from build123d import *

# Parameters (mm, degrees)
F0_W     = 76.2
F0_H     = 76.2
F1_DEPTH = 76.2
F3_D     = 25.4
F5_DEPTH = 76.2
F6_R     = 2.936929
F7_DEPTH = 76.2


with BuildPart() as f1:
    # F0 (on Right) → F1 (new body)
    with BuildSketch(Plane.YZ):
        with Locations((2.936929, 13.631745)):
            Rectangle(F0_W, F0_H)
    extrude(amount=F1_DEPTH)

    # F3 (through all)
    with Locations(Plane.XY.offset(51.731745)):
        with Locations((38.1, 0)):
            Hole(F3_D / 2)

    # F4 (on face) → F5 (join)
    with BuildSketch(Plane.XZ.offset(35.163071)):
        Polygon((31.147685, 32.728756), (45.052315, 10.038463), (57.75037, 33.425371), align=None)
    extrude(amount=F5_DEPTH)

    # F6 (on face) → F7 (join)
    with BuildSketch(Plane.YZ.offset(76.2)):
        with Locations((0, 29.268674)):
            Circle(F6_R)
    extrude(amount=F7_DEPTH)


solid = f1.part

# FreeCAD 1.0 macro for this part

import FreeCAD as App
import Part
import Sketcher

V = App.Vector
Q = App.Units.Quantity


def add_polygon(sketch, points):
    """Adds a closed chain of lines whose ends are joined by coincident constraints."""
    first, n = sketch.GeometryCount, len(points)
    for a, b in zip(points, points[1:] + points[:1]):
        sketch.addGeometry(Part.LineSegment(App.Vector(*a, 0), App.Vector(*b, 0)), False)
    for i in range(n):
        sketch.addConstraint(Sketcher.Constraint("Coincident", first + i, 2, first + (i + 1) % n, 1))

doc = App.newDocument("Part")
params = doc.addObject("Spreadsheet::Sheet", "Params")
for row, (alias, value) in enumerate([
    ("sketch1_width", "3 in"),
    ("pad1_length", "3 in"),
    ("sketch2_diameter", "1 in"),
    ("hole_diameter", "1 in"),
    ("pad2_length", "3 in"),
    ("pad3_length", "3 in"),
], start=1):
    params.set(f"A{row}", alias)
    params.set(f"B{row}", "=" + value)
    params.setAlias(f"B{row}", alias)

body = doc.addObject("PartDesign::Body", "Body")

sketch1 = body.newObject("Sketcher::SketchObject", "Sketch")
sketch1.AttachmentSupport = (doc.getObject("YZ_Plane"), [""])
sketch1.MapMode = "FlatFace"
add_polygon(sketch1, [(-35, 52), (-35, -24), (41, -24), (41, 52)])
sketch1.addConstraint(Sketcher.Constraint("Vertical", 0))
sketch1.addConstraint(Sketcher.Constraint("Horizontal", 1))
sketch1.addConstraint(Sketcher.Constraint("Vertical", 2))
sketch1.addConstraint(Sketcher.Constraint("Horizontal", 3))
sketch1.addConstraint(Sketcher.Constraint("Equal", 3, 0))
sketch1.addConstraint(Sketcher.Constraint("DistanceX", 1, 1, 1, 2, Q("3 in")))
sketch1.addConstraint(Sketcher.Constraint("DistanceX", 0, 2, -1, 1, 35.163071))
sketch1.addConstraint(Sketcher.Constraint("DistanceY", 0, 2, -1, 1, 24.468255))
sketch1.setExpression("Constraints[9]", "Params.sketch1_width")
pad1 = body.newObject("PartDesign::Pad", "Pad")
pad1.Profile = sketch1
pad1.setExpression("Length", "Params.pad1_length")

sketch2 = body.newObject("Sketcher::SketchObject", "Sketch001")
sketch2.AttachmentSupport = (doc.getObject("XY_Plane"), [""])
sketch2.MapMode = "FlatFace"
sketch2.AttachmentOffset = App.Placement(V(0, 0, 51.731745), App.Rotation())
sketch2.addGeometry(Part.Circle(V(38, 0, 0), V(0, 0, 1), 13), False)
sketch2.addConstraint(Sketcher.Constraint("PointOnObject", 0, 3, -1))
sketch2.addConstraint(Sketcher.Constraint("Diameter", 0, Q("1 in")))
sketch2.addConstraint(Sketcher.Constraint("DistanceX", -1, 1, 0, 3, Q("1.5 in")))
sketch2.setExpression("Constraints[1]", "Params.sketch2_diameter")
doc.recompute()
hole = body.newObject("PartDesign::Hole", "Hole")
hole.Profile = sketch2
hole.ThreadType = "None"
hole.setExpression("Diameter", "Params.hole_diameter")
hole.DepthType = "ThroughAll"

sketch3 = body.newObject("Sketcher::SketchObject", "Sketch002")
sketch3.AttachmentSupport = (doc.getObject("XZ_Plane"), [""])
sketch3.MapMode = "FlatFace"
sketch3.AttachmentOffset = App.Placement(V(0, 0, 35.163071), App.Rotation())
add_polygon(sketch3, [(31, 33), (45, 10), (58, 33)])
sketch3.addConstraint(Sketcher.Constraint("Equal", 0, 1))
sketch3.addConstraint(Sketcher.Constraint("Equal", 1, 2))
sketch3.addConstraint(Sketcher.Constraint("Angle", 0, Q("-58.499999 deg")))
sketch3.addConstraint(Sketcher.Constraint("DistanceX", -1, 1, 1, 2, 57.75037))
sketch3.addConstraint(Sketcher.Constraint("DistanceY", -1, 1, 1, 2, 33.425371))
sketch3.addConstraint(Sketcher.Constraint("DistanceX", 2, 2, 0, 2, 13.90463))
pad2 = body.newObject("PartDesign::Pad", "Pad001")
pad2.Profile = sketch3
pad2.setExpression("Length", "Params.pad2_length")

sketch4 = body.newObject("Sketcher::SketchObject", "Sketch003")
sketch4.AttachmentSupport = (doc.getObject("YZ_Plane"), [""])
sketch4.MapMode = "FlatFace"
sketch4.AttachmentOffset = App.Placement(V(0, 0, 3 * 25.4), App.Rotation())
sketch4.addGeometry(Part.Circle(V(0, 29.3, 0), V(0, 0, 1), 2.9), False)
sketch4.addConstraint(Sketcher.Constraint("PointOnObject", 0, 3, -2))
sketch4.addConstraint(Sketcher.Constraint("Diameter", 0, 5.873858))
sketch4.addConstraint(Sketcher.Constraint("DistanceY", -1, 1, 0, 3, 29.268674))
pad3 = body.newObject("PartDesign::Pad", "Pad002")
pad3.Profile = sketch4
pad3.setExpression("Length", "Params.pad3_length")

doc.recompute()
